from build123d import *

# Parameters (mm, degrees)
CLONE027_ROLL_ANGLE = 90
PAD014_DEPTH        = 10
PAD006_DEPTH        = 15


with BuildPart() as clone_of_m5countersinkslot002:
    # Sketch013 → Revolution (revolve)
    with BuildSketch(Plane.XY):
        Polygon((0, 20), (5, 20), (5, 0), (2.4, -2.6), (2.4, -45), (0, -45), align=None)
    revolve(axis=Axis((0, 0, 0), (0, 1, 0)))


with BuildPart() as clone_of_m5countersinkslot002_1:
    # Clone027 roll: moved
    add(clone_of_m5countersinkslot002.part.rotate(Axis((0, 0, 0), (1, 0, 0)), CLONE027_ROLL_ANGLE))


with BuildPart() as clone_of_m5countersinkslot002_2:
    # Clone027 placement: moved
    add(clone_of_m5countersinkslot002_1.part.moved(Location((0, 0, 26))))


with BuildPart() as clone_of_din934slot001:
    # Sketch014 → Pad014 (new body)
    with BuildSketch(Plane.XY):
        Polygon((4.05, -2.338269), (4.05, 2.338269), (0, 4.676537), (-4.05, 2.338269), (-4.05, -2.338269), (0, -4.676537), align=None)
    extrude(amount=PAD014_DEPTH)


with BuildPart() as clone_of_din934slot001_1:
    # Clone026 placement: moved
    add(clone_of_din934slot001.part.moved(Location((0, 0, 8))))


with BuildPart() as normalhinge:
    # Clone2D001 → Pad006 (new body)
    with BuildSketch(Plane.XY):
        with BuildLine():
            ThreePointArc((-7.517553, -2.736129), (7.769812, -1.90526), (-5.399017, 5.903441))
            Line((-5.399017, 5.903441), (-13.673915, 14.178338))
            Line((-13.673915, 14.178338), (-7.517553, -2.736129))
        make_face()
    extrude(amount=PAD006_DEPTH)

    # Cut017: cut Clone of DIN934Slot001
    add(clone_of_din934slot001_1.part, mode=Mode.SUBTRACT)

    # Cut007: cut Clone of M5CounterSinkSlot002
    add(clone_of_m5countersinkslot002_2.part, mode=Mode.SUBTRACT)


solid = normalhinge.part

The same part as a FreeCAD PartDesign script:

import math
import FreeCAD as App
import Part
import Sketcher

V = App.Vector
Q = App.Units.Quantity


def add_polygon(sketch, points):
    """Adds a closed chain of lines whose ends are joined by coincident constraints."""
    first, n = sketch.GeometryCount, len(points)
    for a, b in zip(points, points[1:] + points[:1]):
        sketch.addGeometry(Part.LineSegment(App.Vector(*a, 0), App.Vector(*b, 0)), False)
    for i in range(n):
        sketch.addConstraint(Sketcher.Constraint("Coincident", first + i, 2, first + (i + 1) % n, 1))

doc = App.newDocument("Part")
body = doc.addObject("PartDesign::Body", "Body")

sketch1 = body.newObject("Sketcher::SketchObject", "Sketch")
sketch1.AttachmentSupport = (doc.getObject("XY_Plane"), [""])
sketch1.MapMode = "FlatFace"
add_polygon(sketch1, [(5, 20), (0, 20), (0, -45), (2.4, -45), (2.4, -2.6), (5, 0)])
sketch1.addConstraint([
    Sketcher.Constraint("Horizontal", 0),
    Sketcher.Constraint("Vertical", 1),
    Sketcher.Constraint("Horizontal", 2),
    Sketcher.Constraint("Vertical", 3),
    Sketcher.Constraint("Vertical", 5),
    Sketcher.Constraint("PointOnObject", 0, 2, -2),
    Sketcher.Constraint("PointOnObject", 4, 2, -1),
    Sketcher.Constraint("DistanceX", 0, 2, 0, 1, Q("5 mm")),
    Sketcher.Constraint("DistanceY", 1, 2, 1, 1, Q("65 mm")),
    Sketcher.Constraint("DistanceY", 5, 1, 5, 2, Q("20 mm")),
    Sketcher.Constraint("Angle", 4, Q("45 deg")),
    Sketcher.Constraint("DistanceX", 2, 1, 2, 2, Q("2.4 mm")),
])
revolution = body.newObject("PartDesign::Revolution", "Revolution")
revolution.Profile = sketch1
revolution.ReferenceAxis = (sketch1, ["V_Axis"])
revolution.Angle = 360
body2 = doc.addObject("PartDesign::Body", "Body001")
doc.recompute()

body.Placement = App.Placement(V(0, 0, 0), App.Rotation(V(1, 0, 0), 90))
boolean = body2.newObject("PartDesign::Boolean", "Boolean")
boolean.Type = "Fuse"
boolean.addObjects([body])
body3 = doc.addObject("PartDesign::Body", "Body002")
doc.recompute()

body2.Placement = App.Placement(V(0, 0, 26), App.Rotation(V(0, 0, 1), 0))
boolean2 = body3.newObject("PartDesign::Boolean", "Boolean001")
boolean2.Type = "Fuse"
boolean2.addObjects([body2])
body4 = doc.addObject("PartDesign::Body", "Body003")

sketch2 = body4.newObject("Sketcher::SketchObject", "Sketch001")
sketch2.AttachmentSupport = (doc.getObject("XY_Plane003"), [""])
sketch2.MapMode = "FlatFace"
add_polygon(sketch2, [(4.05, -2.338269), (4.05, 2.338269), (0, 4.676537), (-4.05, 2.338269), (-4.05, -2.338269), (0, -4.676537)])
sketch2.addConstraint([
    Sketcher.Constraint("Vertical", 0),
    Sketcher.Constraint("Vertical", 3),
    Sketcher.Constraint("Symmetric", 0, 2, 3, 2, -1, 1),
    Sketcher.Constraint("Symmetric", 1, 2, 4, 2, -1, 1),
    Sketcher.Constraint("PointOnObject", 1, 2, -2),
    Sketcher.Constraint("Parallel", 2, 5),
    Sketcher.Constraint("Horizontal", 0, 2, 2, 2),
    Sketcher.Constraint("Angle", 1, Q("150.000006 deg")),
    Sketcher.Constraint("DistanceX", 2, 2, 0, 2, Q("8.1 mm")),
    Sketcher.Constraint("DistanceY", 0, 1, 0, 2, Q("4.676538 mm")),
])
pad1 = body4.newObject("PartDesign::Pad", "Pad")
pad1.Profile = sketch2
pad1.Length = 10
body5 = doc.addObject("PartDesign::Body", "Body004")
doc.recompute()

body4.Placement = App.Placement(V(0, 0, 8), App.Rotation(V(0, 0, 1), 0))
boolean3 = body5.newObject("PartDesign::Boolean", "Boolean002")
boolean3.Type = "Fuse"
boolean3.addObjects([body4])
body6 = doc.addObject("PartDesign::Body", "Body005")

sketch3 = body6.newObject("Sketcher::SketchObject", "Sketch002")
sketch3.AttachmentSupport = (doc.getObject("XY_Plane005"), [""])
sketch3.MapMode = "FlatFace"
sketch3.addGeometry([
    Part.ArcOfCircle(Part.Circle(V(0, 0, 0), V(0, 0, 1), 8), math.radians(-160.000246), math.radians(132.444606)),
    Part.LineSegment(V(-5.399017, 5.903441, 0), V(-13.673915, 14.178338, 0)),
    Part.LineSegment(V(-13.673915, 14.178338, 0), V(-7.517553, -2.736129, 0)),
], False)
sketch3.addConstraint([
    Sketcher.Constraint("Coincident", 0, 2, 1, 1),
    Sketcher.Constraint("Coincident", 1, 2, 2, 1),
    Sketcher.Constraint("Coincident", 2, 2, 0, 1),
    Sketcher.Constraint("Coincident", 0, 3, -1, 1),
    Sketcher.Constraint("Radius", 0, Q("8 mm")),
    Sketcher.Constraint("Angle", 1, Q("135.000003 deg")),
    Sketcher.Constraint("Angle", 2, Q("-70.000002 deg")),
    Sketcher.Constraint("Distance", 2, Q("18 mm")),
    Sketcher.Constraint("DistanceY", -1, 1, 0, 2, Q("5.903441 mm")),
])
pad2 = body6.newObject("PartDesign::Pad", "Pad001")
pad2.Profile = sketch3
pad2.Length = 15
doc.recompute()

boolean4 = body6.newObject("PartDesign::Boolean", "Boolean003")
boolean4.Type = "Cut"
boolean4.addObjects([body5])
doc.recompute()

boolean5 = body6.newObject("PartDesign::Boolean", "Boolean004")
boolean5.Type = "Cut"
boolean5.addObjects([body3])

doc.recompute()
